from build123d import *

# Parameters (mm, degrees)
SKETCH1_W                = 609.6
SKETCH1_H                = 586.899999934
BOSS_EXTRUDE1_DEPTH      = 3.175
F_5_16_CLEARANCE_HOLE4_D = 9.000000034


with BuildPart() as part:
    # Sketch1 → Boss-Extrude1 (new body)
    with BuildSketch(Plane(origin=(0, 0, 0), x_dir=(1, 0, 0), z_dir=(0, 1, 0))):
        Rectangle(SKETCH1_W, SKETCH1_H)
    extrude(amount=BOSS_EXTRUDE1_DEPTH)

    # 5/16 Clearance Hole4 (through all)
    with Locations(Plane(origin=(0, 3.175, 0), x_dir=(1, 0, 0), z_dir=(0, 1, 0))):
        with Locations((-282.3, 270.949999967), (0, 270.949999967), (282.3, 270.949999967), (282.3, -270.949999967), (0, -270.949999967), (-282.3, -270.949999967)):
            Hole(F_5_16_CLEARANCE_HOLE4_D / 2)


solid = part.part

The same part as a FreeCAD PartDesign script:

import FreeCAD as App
import Part
import Sketcher
from FreeCAD import Vector

doc = App.newDocument("Part")
body = doc.addObject("PartDesign::Body", "Body")

# Sketch on XZ plane
sketch1 = body.newObject("Sketcher::SketchObject", "Sketch")
sketch1.AttachmentSupport = (doc.getObject("XZ_Plane"), [""])
sketch1.MapMode = "FlatFace"
sketch1.addGeometry(Part.LineSegment(Vector(-305, -293, 0), Vector(-305, 293, 0)), False)
sketch1.addGeometry(Part.LineSegment(Vector(-305, 293, 0), Vector(305, 293, 0)), False)
sketch1.addGeometry(Part.LineSegment(Vector(305, 293, 0), Vector(305, -293, 0)), False)
sketch1.addGeometry(Part.LineSegment(Vector(305, -293, 0), Vector(-305, -293, 0)), False)
sketch1.addConstraint(Sketcher.Constraint("Coincident", 0, 2, 1, 1))
sketch1.addConstraint(Sketcher.Constraint("Coincident", 1, 2, 2, 1))
sketch1.addConstraint(Sketcher.Constraint("Coincident", 2, 2, 3, 1))
sketch1.addConstraint(Sketcher.Constraint("Coincident", 3, 2, 0, 1))
sketch1.addConstraint(Sketcher.Constraint("Vertical", 0))
sketch1.addConstraint(Sketcher.Constraint("Horizontal", 1))
sketch1.addConstraint(Sketcher.Constraint("Vertical", 2))
sketch1.addConstraint(Sketcher.Constraint("Horizontal", 3))
sketch1.addConstraint(Sketcher.Constraint("Symmetric", 0, 2, 2, 2, -1, 1))
sketch1.addConstraint(Sketcher.Constraint("DistanceX", 1, 1, 1, 2, 609.6))
sketch1.addConstraint(Sketcher.Constraint("DistanceY", 0, 1, 0, 2, 586.9))
pad1 = body.newObject("PartDesign::Pad", "Pad")
pad1.Profile = sketch1
pad1.Length = 3.175
pad1.Reversed = True

# Sketch on XZ plane
sketch2 = body.newObject("Sketcher::SketchObject", "Sketch001")
sketch2.AttachmentSupport = (doc.getObject("XZ_Plane"), [""])
sketch2.MapMode = "FlatFace"
sketch2.AttachmentOffset = App.Placement(Vector(0, 0, -3.175), App.Rotation())
sketch2.addGeometry(Part.Circle(Vector(-282.3, -270.9, 0), Vector(0, 0, 1), 4.5), False)
sketch2.addGeometry(Part.Circle(Vector(0, -270.9, 0), Vector(0, 0, 1), 4.5), False)
sketch2.addGeometry(Part.Circle(Vector(282.3, -270.9, 0), Vector(0, 0, 1), 4.5), False)
sketch2.addGeometry(Part.Circle(Vector(282.3, 270.9, 0), Vector(0, 0, 1), 4.5), False)
sketch2.addGeometry(Part.Circle(Vector(0, 270.9, 0), Vector(0, 0, 1), 4.5), False)
sketch2.addGeometry(Part.Circle(Vector(-282.3, 270.9, 0), Vector(0, 0, 1), 4.5), False)
sketch2.addConstraint(Sketcher.Constraint("Equal", 0, 1))
sketch2.addConstraint(Sketcher.Constraint("Equal", 1, 2))
sketch2.addConstraint(Sketcher.Constraint("Equal", 2, 3))
sketch2.addConstraint(Sketcher.Constraint("Equal", 3, 4))
sketch2.addConstraint(Sketcher.Constraint("Equal", 4, 5))
sketch2.addConstraint(Sketcher.Constraint("Symmetric", 0, 3, 3, 3, -1, 1))
sketch2.addConstraint(Sketcher.Constraint("Symmetric", 1, 3, 4, 3, -1, 1))
sketch2.addConstraint(Sketcher.Constraint("Symmetric", 2, 3, 5, 3, -1, 1))
sketch2.addConstraint(Sketcher.Constraint("Symmetric", 0, 3, 2, 3, -2))
sketch2.addConstraint(Sketcher.Constraint("PointOnObject", 1, 3, -2))
sketch2.addConstraint(Sketcher.Constraint("Horizontal", 0, 3, 1, 3))
sketch2.addConstraint(Sketcher.Constraint("Diameter", 0, 9.0))
sketch2.addConstraint(Sketcher.Constraint("DistanceX", 0, 3, -1, 1, 282.3))
sketch2.addConstraint(Sketcher.Constraint("DistanceY", 2, 3, 3, 3, 541.9))
doc.recompute()
hole = body.newObject("PartDesign::Hole", "Hole")
hole.Profile = sketch2
hole.ThreadType = "None"
hole.Diameter = 9
hole.DepthType = "ThroughAll"
hole.Reversed = True

doc.recompute()
